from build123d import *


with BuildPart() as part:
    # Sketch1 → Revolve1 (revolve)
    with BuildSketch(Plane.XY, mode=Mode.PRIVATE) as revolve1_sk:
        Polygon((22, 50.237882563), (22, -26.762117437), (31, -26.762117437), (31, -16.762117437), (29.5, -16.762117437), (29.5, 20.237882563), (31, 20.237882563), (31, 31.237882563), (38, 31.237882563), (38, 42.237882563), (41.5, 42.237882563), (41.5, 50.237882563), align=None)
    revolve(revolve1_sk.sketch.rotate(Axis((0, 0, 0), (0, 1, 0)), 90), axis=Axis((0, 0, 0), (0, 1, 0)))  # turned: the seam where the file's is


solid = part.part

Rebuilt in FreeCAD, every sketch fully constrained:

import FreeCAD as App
import Part
import Sketcher
Q = App.Units.Quantity

doc = App.newDocument("Part")
body = doc.addObject("PartDesign::Body", "Body")

# Sketch on XY plane
sketch1 = doc.addObject("Sketcher::SketchObject", "Sketch")
body.addObject(sketch1)
sketch1.AttachmentSupport = (doc.XY_Plane, [""])
sketch1.MapMode = "FlatFace"
sketch1.addGeometry(Part.LineSegment(App.Vector(22, 50.237883, 0), App.Vector(22, -26.762117, 0)), False)
sketch1.addGeometry(Part.LineSegment(App.Vector(22, -26.762117, 0), App.Vector(31, -26.762117, 0)), False)
sketch1.addGeometry(Part.LineSegment(App.Vector(31, -26.762117, 0), App.Vector(31, -16.762117, 0)), False)
sketch1.addGeometry(Part.LineSegment(App.Vector(31, -16.762117, 0), App.Vector(29.5, -16.762117, 0)), False)
sketch1.addGeometry(Part.LineSegment(App.Vector(29.5, -16.762117, 0), App.Vector(29.5, 20.237883, 0)), False)
sketch1.addGeometry(Part.LineSegment(App.Vector(29.5, 20.237883, 0), App.Vector(31, 20.237883, 0)), False)
sketch1.addGeometry(Part.LineSegment(App.Vector(31, 20.237883, 0), App.Vector(31, 31.237883, 0)), False)
sketch1.addGeometry(Part.LineSegment(App.Vector(31, 31.237883, 0), App.Vector(38, 31.237883, 0)), False)
sketch1.addGeometry(Part.LineSegment(App.Vector(38, 31.237883, 0), App.Vector(38, 42.237883, 0)), False)
sketch1.addGeometry(Part.LineSegment(App.Vector(38, 42.237883, 0), App.Vector(41.5, 42.237883, 0)), False)
sketch1.addGeometry(Part.LineSegment(App.Vector(41.5, 42.237883, 0), App.Vector(41.5, 50.237883, 0)), False)
sketch1.addGeometry(Part.LineSegment(App.Vector(41.5, 50.237883, 0), App.Vector(22, 50.237883, 0)), False)
sketch1.addConstraint(Sketcher.Constraint("Coincident", 0, 2, 1, 1))
sketch1.addConstraint(Sketcher.Constraint("Coincident", 1, 2, 2, 1))
sketch1.addConstraint(Sketcher.Constraint("Coincident", 2, 2, 3, 1))
sketch1.addConstraint(Sketcher.Constraint("Coincident", 3, 2, 4, 1))
sketch1.addConstraint(Sketcher.Constraint("Coincident", 4, 2, 5, 1))
sketch1.addConstraint(Sketcher.Constraint("Coincident", 5, 2, 6, 1))
sketch1.addConstraint(Sketcher.Constraint("Coincident", 6, 2, 7, 1))
sketch1.addConstraint(Sketcher.Constraint("Coincident", 7, 2, 8, 1))
sketch1.addConstraint(Sketcher.Constraint("Coincident", 8, 2, 9, 1))
sketch1.addConstraint(Sketcher.Constraint("Coincident", 9, 2, 10, 1))
sketch1.addConstraint(Sketcher.Constraint("Coincident", 10, 2, 11, 1))
sketch1.addConstraint(Sketcher.Constraint("Coincident", 11, 2, 0, 1))
sketch1.addConstraint(Sketcher.Constraint("Vertical", 0))
sketch1.addConstraint(Sketcher.Constraint("Horizontal", 1))
sketch1.addConstraint(Sketcher.Constraint("Vertical", 2))
sketch1.addConstraint(Sketcher.Constraint("Horizontal", 3))
sketch1.addConstraint(Sketcher.Constraint("Vertical", 4))
sketch1.addConstraint(Sketcher.Constraint("Horizontal", 5))
sketch1.addConstraint(Sketcher.Constraint("Vertical", 6))
sketch1.addConstraint(Sketcher.Constraint("Horizontal", 7))
sketch1.addConstraint(Sketcher.Constraint("Vertical", 8))
sketch1.addConstraint(Sketcher.Constraint("Horizontal", 9))
sketch1.addConstraint(Sketcher.Constraint("Vertical", 10))
sketch1.addConstraint(Sketcher.Constraint("Horizontal", 11))
sketch1.addConstraint(Sketcher.Constraint("Vertical", 2, 2, 5, 2))
sketch1.addConstraint(Sketcher.Constraint("Equal", 6, 8))
sketch1.addConstraint(Sketcher.Constraint("DistanceX", 1, 1, 1, 2, Q("9 mm")))
sketch1.addConstraint(Sketcher.Constraint("DistanceX", 7, 1, 7, 2, Q("7 mm")))
sketch1.addConstraint(Sketcher.Constraint("DistanceY", 0, 2, 0, 1, Q("77 mm")))
sketch1.addConstraint(Sketcher.Constraint("DistanceY", 2, 1, 2, 2, Q("10 mm")))
sketch1.addConstraint(Sketcher.Constraint("DistanceY", 4, 1, 4, 2, Q("37 mm")))
sketch1.addConstraint(Sketcher.Constraint("DistanceY", 6, 1, 6, 2, Q("11 mm")))
sketch1.addConstraint(Sketcher.Constraint("DistanceX", 3, 2, 3, 1, Q("1.5 mm")))
sketch1.addConstraint(Sketcher.Constraint("DistanceX", 9, 1, 9, 2, Q("3.5 mm")))
sketch1.addConstraint(Sketcher.Constraint("DistanceX", -1, 1, 0, 2, Q("22 mm")))
sketch1.addConstraint(Sketcher.Constraint("DistanceY", 0, 2, -1, 1, Q("26.762117 mm")))
revolution = doc.addObject("PartDesign::Revolution", "Revolution")
body.addObject(revolution)
revolution.Profile = sketch1
revolution.ReferenceAxis = (sketch1, ["V_Axis"])
revolution.Angle = 360

doc.recompute()
